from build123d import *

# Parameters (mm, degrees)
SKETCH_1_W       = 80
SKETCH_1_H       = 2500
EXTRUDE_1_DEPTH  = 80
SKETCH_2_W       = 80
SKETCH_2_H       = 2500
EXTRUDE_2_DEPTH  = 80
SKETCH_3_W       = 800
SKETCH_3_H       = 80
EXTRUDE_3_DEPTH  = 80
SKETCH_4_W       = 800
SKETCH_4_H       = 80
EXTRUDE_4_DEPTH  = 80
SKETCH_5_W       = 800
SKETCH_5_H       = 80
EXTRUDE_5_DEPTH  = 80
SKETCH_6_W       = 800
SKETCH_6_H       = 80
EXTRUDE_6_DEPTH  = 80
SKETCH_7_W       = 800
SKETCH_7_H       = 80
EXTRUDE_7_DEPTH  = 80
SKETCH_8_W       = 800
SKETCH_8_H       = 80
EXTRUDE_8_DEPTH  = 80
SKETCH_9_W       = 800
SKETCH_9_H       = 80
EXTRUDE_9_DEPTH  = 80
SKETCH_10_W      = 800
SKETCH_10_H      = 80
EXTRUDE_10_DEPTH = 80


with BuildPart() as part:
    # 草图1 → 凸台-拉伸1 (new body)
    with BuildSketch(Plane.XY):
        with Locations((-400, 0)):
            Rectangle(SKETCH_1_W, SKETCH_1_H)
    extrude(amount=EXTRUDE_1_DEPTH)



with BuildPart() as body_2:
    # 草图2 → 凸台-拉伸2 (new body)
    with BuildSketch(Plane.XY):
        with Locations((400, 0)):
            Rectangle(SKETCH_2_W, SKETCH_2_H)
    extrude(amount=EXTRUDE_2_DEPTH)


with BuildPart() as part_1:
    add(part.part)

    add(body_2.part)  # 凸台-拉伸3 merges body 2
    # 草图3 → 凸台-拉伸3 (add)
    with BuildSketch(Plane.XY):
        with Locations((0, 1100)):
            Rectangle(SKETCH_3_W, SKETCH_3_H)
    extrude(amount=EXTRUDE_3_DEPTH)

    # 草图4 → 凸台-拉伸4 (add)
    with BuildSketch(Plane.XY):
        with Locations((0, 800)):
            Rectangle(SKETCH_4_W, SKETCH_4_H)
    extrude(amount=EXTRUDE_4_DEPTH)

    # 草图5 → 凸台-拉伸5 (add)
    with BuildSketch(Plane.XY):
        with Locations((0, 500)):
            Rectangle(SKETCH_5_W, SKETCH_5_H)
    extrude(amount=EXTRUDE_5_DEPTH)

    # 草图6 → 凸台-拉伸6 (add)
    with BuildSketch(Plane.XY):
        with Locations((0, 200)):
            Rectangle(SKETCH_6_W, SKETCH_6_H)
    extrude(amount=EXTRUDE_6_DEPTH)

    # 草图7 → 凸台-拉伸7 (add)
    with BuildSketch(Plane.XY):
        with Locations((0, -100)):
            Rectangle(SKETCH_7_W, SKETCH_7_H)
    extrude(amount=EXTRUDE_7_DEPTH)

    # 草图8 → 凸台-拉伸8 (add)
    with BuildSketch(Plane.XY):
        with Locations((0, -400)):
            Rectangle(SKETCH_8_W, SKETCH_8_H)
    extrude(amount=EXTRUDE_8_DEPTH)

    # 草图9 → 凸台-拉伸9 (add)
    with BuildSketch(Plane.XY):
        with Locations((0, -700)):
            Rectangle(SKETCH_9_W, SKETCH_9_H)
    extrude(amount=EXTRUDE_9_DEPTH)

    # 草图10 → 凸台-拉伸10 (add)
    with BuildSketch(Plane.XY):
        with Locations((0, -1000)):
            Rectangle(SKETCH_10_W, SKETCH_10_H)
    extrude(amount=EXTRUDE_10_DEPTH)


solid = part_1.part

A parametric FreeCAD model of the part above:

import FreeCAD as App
import Part
import Sketcher

V = App.Vector


def add_polygon(sketch, points):
    """Adds a closed chain of lines whose ends are joined by coincident constraints."""
    first, n = sketch.GeometryCount, len(points)
    for a, b in zip(points, points[1:] + points[:1]):
        sketch.addGeometry(Part.LineSegment(App.Vector(*a, 0), App.Vector(*b, 0)), False)
    for i in range(n):
        sketch.addConstraint(Sketcher.Constraint("Coincident", first + i, 2, first + (i + 1) % n, 1))

doc = App.newDocument("Part")
body = doc.addObject("PartDesign::Body", "Body")

sketch1 = body.newObject("Sketcher::SketchObject", "Sketch")
sketch1.AttachmentSupport = (doc.getObject("XY_Plane"), [""])
sketch1.MapMode = "FlatFace"
add_polygon(sketch1, [(-440, 1250), (-440, -1250), (-360, -1250), (-360, 1250)])
sketch1.addConstraint([
    Sketcher.Constraint("Vertical", 0),
    Sketcher.Constraint("Horizontal", 1),
    Sketcher.Constraint("Vertical", 2),
    Sketcher.Constraint("Horizontal", 3),
    Sketcher.Constraint("DistanceX", 1, 1, 1, 2, 80.0),
    Sketcher.Constraint("DistanceY", 0, 2, 0, 1, 2500.0),
    Sketcher.Constraint("DistanceX", 0, 2, -1, 1, 440.0),
    Sketcher.Constraint("DistanceY", 0, 2, -1, 1, 1250.0),
])
pad1 = body.newObject("PartDesign::Pad", "Pad")
pad1.Profile = sketch1
pad1.Length = 80
body2 = doc.addObject("PartDesign::Body", "Body001")

sketch2 = body2.newObject("Sketcher::SketchObject", "Sketch001")
sketch2.AttachmentSupport = (doc.getObject("XY_Plane001"), [""])
sketch2.MapMode = "FlatFace"
add_polygon(sketch2, [(360, 1250), (360, -1250), (440, -1250), (440, 1250)])
sketch2.addConstraint([
    Sketcher.Constraint("Vertical", 0),
    Sketcher.Constraint("Horizontal", 1),
    Sketcher.Constraint("Vertical", 2),
    Sketcher.Constraint("Horizontal", 3),
    Sketcher.Constraint("DistanceX", 1, 1, 1, 2, 80.0),
    Sketcher.Constraint("DistanceY", 0, 2, 0, 1, 2500.0),
    Sketcher.Constraint("DistanceX", -1, 1, 0, 2, 360.0),
    Sketcher.Constraint("DistanceY", 0, 2, -1, 1, 1250.0),
])
pad2 = body2.newObject("PartDesign::Pad", "Pad001")
pad2.Profile = sketch2
pad2.Length = 80
body.AllowCompound = True
doc.recompute()

boolean = body.newObject("PartDesign::Boolean", "Boolean")
boolean.Type = "Fuse"
boolean.addObjects([body2])

sketch3 = body.newObject("Sketcher::SketchObject", "Sketch002")
sketch3.AttachmentSupport = (doc.getObject("XY_Plane"), [""])
sketch3.MapMode = "FlatFace"
add_polygon(sketch3, [(-400, 1140), (-400, 1060), (400, 1060), (400, 1140)])
sketch3.addConstraint([
    Sketcher.Constraint("Vertical", 0),
    Sketcher.Constraint("Horizontal", 1),
    Sketcher.Constraint("Vertical", 2),
    Sketcher.Constraint("Horizontal", 3),
    Sketcher.Constraint("DistanceX", 1, 1, 1, 2, 800.0),
    Sketcher.Constraint("DistanceY", 0, 2, 0, 1, 80.0),
    Sketcher.Constraint("DistanceX", 0, 2, -1, 1, 400.0),
    Sketcher.Constraint("DistanceY", -1, 1, 0, 2, 1060.0),
])
pad3 = body.newObject("PartDesign::Pad", "Pad002")
pad3.Profile = sketch3
pad3.Length = 80

sketch4 = body.newObject("Sketcher::SketchObject", "Sketch003")
sketch4.AttachmentSupport = (doc.getObject("XY_Plane"), [""])
sketch4.MapMode = "FlatFace"
add_polygon(sketch4, [(-400, 840), (-400, 760), (400, 760), (400, 840)])
sketch4.addConstraint([
    Sketcher.Constraint("Vertical", 0),
    Sketcher.Constraint("Horizontal", 1),
    Sketcher.Constraint("Vertical", 2),
    Sketcher.Constraint("Horizontal", 3),
    Sketcher.Constraint("DistanceX", 1, 1, 1, 2, 800.0),
    Sketcher.Constraint("DistanceY", 0, 2, 0, 1, 80.0),
    Sketcher.Constraint("DistanceX", 0, 2, -1, 1, 400.0),
    Sketcher.Constraint("DistanceY", -1, 1, 0, 2, 760.0),
])
pad4 = body.newObject("PartDesign::Pad", "Pad003")
pad4.Profile = sketch4
pad4.Length = 80

sketch5 = body.newObject("Sketcher::SketchObject", "Sketch004")
sketch5.AttachmentSupport = (doc.getObject("XY_Plane"), [""])
sketch5.MapMode = "FlatFace"
add_polygon(sketch5, [(-400, 540), (-400, 460), (400, 460), (400, 540)])
sketch5.addConstraint([
    Sketcher.Constraint("Vertical", 0),
    Sketcher.Constraint("Horizontal", 1),
    Sketcher.Constraint("Vertical", 2),
    Sketcher.Constraint("Horizontal", 3),
    Sketcher.Constraint("DistanceX", 1, 1, 1, 2, 800.0),
    Sketcher.Constraint("DistanceY", 0, 2, 0, 1, 80.0),
    Sketcher.Constraint("DistanceX", 0, 2, -1, 1, 400.0),
    Sketcher.Constraint("DistanceY", -1, 1, 0, 2, 460.0),
])
pad5 = body.newObject("PartDesign::Pad", "Pad004")
pad5.Profile = sketch5
pad5.Length = 80

sketch6 = body.newObject("Sketcher::SketchObject", "Sketch005")
sketch6.AttachmentSupport = (doc.getObject("XY_Plane"), [""])
sketch6.MapMode = "FlatFace"
add_polygon(sketch6, [(-400, 240), (-400, 160), (400, 160), (400, 240)])
sketch6.addConstraint([
    Sketcher.Constraint("Vertical", 0),
    Sketcher.Constraint("Horizontal", 1),
    Sketcher.Constraint("Vertical", 2),
    Sketcher.Constraint("Horizontal", 3),
    Sketcher.Constraint("DistanceX", 1, 1, 1, 2, 800.0),
    Sketcher.Constraint("DistanceY", 0, 2, 0, 1, 80.0),
    Sketcher.Constraint("DistanceX", 0, 2, -1, 1, 400.0),
    Sketcher.Constraint("DistanceY", -1, 1, 0, 2, 160.0),
])
pad6 = body.newObject("PartDesign::Pad", "Pad005")
pad6.Profile = sketch6
pad6.Length = 80

sketch7 = body.newObject("Sketcher::SketchObject", "Sketch006")
sketch7.AttachmentSupport = (doc.getObject("XY_Plane"), [""])
sketch7.MapMode = "FlatFace"
add_polygon(sketch7, [(-400, -60), (-400, -140), (400, -140), (400, -60)])
sketch7.addConstraint([
    Sketcher.Constraint("Vertical", 0),
    Sketcher.Constraint("Horizontal", 1),
    Sketcher.Constraint("Vertical", 2),
    Sketcher.Constraint("Horizontal", 3),
    Sketcher.Constraint("DistanceX", 1, 1, 1, 2, 800.0),
    Sketcher.Constraint("DistanceY", 0, 2, 0, 1, 80.0),
    Sketcher.Constraint("DistanceX", 0, 2, -1, 1, 400.0),
    Sketcher.Constraint("DistanceY", 0, 2, -1, 1, 140.0),
])
pad7 = body.newObject("PartDesign::Pad", "Pad006")
pad7.Profile = sketch7
pad7.Length = 80

sketch8 = body.newObject("Sketcher::SketchObject", "Sketch007")
sketch8.AttachmentSupport = (doc.getObject("XY_Plane"), [""])
sketch8.MapMode = "FlatFace"
add_polygon(sketch8, [(-400, -360), (-400, -440), (400, -440), (400, -360)])
sketch8.addConstraint([
    Sketcher.Constraint("Vertical", 0),
    Sketcher.Constraint("Horizontal", 1),
    Sketcher.Constraint("Vertical", 2),
    Sketcher.Constraint("Horizontal", 3),
    Sketcher.Constraint("DistanceX", 1, 1, 1, 2, 800.0),
    Sketcher.Constraint("DistanceY", 0, 2, 0, 1, 80.0),
    Sketcher.Constraint("DistanceX", 0, 2, -1, 1, 400.0),
    Sketcher.Constraint("DistanceY", 0, 2, -1, 1, 440.0),
])
pad8 = body.newObject("PartDesign::Pad", "Pad007")
pad8.Profile = sketch8
pad8.Length = 80

sketch9 = body.newObject("Sketcher::SketchObject", "Sketch008")
sketch9.AttachmentSupport = (doc.getObject("XY_Plane"), [""])
sketch9.MapMode = "FlatFace"
add_polygon(sketch9, [(-400, -660), (-400, -740), (400, -740), (400, -660)])
sketch9.addConstraint([
    Sketcher.Constraint("Vertical", 0),
    Sketcher.Constraint("Horizontal", 1),
    Sketcher.Constraint("Vertical", 2),
    Sketcher.Constraint("Horizontal", 3),
    Sketcher.Constraint("DistanceX", 1, 1, 1, 2, 800.0),
    Sketcher.Constraint("DistanceY", 0, 2, 0, 1, 80.0),
    Sketcher.Constraint("DistanceX", 0, 2, -1, 1, 400.0),
    Sketcher.Constraint("DistanceY", 0, 2, -1, 1, 740.0),
])
pad9 = body.newObject("PartDesign::Pad", "Pad008")
pad9.Profile = sketch9
pad9.Length = 80

sketch10 = body.newObject("Sketcher::SketchObject", "Sketch009")
sketch10.AttachmentSupport = (doc.getObject("XY_Plane"), [""])
sketch10.MapMode = "FlatFace"
add_polygon(sketch10, [(-400, -960), (-400, -1040), (400, -1040), (400, -960)])
sketch10.addConstraint([
    Sketcher.Constraint("Vertical", 0),
    Sketcher.Constraint("Horizontal", 1),
    Sketcher.Constraint("Vertical", 2),
    Sketcher.Constraint("Horizontal", 3),
    Sketcher.Constraint("DistanceX", 1, 1, 1, 2, 800.0),
    Sketcher.Constraint("DistanceY", 0, 2, 0, 1, 80.0),
    Sketcher.Constraint("DistanceX", 0, 2, -1, 1, 400.0),
    Sketcher.Constraint("DistanceY", 0, 2, -1, 1, 1040.0),
])
pad10 = body.newObject("PartDesign::Pad", "Pad009")
pad10.Profile = sketch10
pad10.Length = 80

doc.recompute()
